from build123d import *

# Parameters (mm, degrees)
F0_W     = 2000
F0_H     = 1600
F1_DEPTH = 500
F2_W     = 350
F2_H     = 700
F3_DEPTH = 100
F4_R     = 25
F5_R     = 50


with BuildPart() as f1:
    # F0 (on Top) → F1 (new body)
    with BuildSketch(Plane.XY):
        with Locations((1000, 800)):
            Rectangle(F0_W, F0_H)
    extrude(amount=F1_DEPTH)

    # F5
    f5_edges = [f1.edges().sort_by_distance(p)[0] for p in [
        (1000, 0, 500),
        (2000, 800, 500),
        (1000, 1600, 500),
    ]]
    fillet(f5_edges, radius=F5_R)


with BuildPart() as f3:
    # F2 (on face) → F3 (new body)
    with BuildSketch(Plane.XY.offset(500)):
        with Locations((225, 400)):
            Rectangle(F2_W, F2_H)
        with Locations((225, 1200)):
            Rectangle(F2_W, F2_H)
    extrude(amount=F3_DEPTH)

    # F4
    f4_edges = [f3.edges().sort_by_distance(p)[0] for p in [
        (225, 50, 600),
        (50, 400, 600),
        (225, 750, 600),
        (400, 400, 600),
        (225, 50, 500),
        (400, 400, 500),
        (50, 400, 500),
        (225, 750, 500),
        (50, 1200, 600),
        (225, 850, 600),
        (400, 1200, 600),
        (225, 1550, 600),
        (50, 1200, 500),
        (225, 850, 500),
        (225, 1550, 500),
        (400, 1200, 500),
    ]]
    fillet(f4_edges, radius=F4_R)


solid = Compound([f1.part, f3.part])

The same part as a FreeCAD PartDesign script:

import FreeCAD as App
import Part
import Sketcher

V = App.Vector
Q = App.Units.Quantity


def edges_at(feature, points):
    """Names of the edges that pass closest to the given points."""
    edges = feature.Shape.Edges
    near = lambda p: min(range(len(edges)), key=lambda i: edges[i].distToShape(Part.Vertex(*p))[0])
    return sorted({f"Edge{near(p) + 1}" for p in points})


def add_polygon(sketch, points):
    """Adds a closed chain of lines whose ends are joined by coincident constraints."""
    first, n = sketch.GeometryCount, len(points)
    for a, b in zip(points, points[1:] + points[:1]):
        sketch.addGeometry(Part.LineSegment(App.Vector(*a, 0), App.Vector(*b, 0)), False)
    for i in range(n):
        sketch.addConstraint(Sketcher.Constraint("Coincident", first + i, 2, first + (i + 1) % n, 1))

doc = App.newDocument("Part")
body = doc.addObject("PartDesign::Body", "Body")

# Sketch on XY plane
sketch1 = body.newObject("Sketcher::SketchObject", "Sketch")
sketch1.AttachmentSupport = (doc.getObject("XY_Plane"), [""])
sketch1.MapMode = "FlatFace"
add_polygon(sketch1, [(0, 1600), (0, 0), (2000, 0), (2000, 1600)])  # lines 0-3
sketch1.addConstraint(Sketcher.Constraint("Vertical", 0))
sketch1.addConstraint(Sketcher.Constraint("Horizontal", 1))
sketch1.addConstraint(Sketcher.Constraint("Vertical", 2))
sketch1.addConstraint(Sketcher.Constraint("Horizontal", 3))
sketch1.addConstraint(Sketcher.Constraint("Coincident", 0, 2, -1, 1))
sketch1.addConstraint(Sketcher.Constraint("DistanceX", 1, 1, 1, 2, Q("2000 mm")))
sketch1.addConstraint(Sketcher.Constraint("DistanceY", 0, 2, 0, 1, Q("1600 mm")))
pad1 = body.newObject("PartDesign::Pad", "Pad")
pad1.Profile = sketch1
pad1.Length = 500
doc.recompute()

fillet = body.newObject("PartDesign::Fillet", "Fillet")
fillet.Base = (pad1, edges_at(pad1, [(1000, 0, 500), (2000, 800, 500), (1000, 1600, 500)]))
fillet.Radius = 50
body2 = doc.addObject("PartDesign::Body", "Body001")
body2.AllowCompound = True

# Sketch on XY plane
sketch2 = body2.newObject("Sketcher::SketchObject", "Sketch001")
sketch2.AttachmentSupport = (doc.getObject("XY_Plane001"), [""])
sketch2.MapMode = "FlatFace"
sketch2.AttachmentOffset = App.Placement(V(0, 0, 500), App.Rotation())
add_polygon(sketch2, [(50, 750), (50, 50), (400, 50), (400, 750)])  # lines 0-3
add_polygon(sketch2, [(50, 1550), (50, 850), (400, 850), (400, 1550)])  # lines 4-7
sketch2.addConstraint(Sketcher.Constraint("Vertical", 0))
sketch2.addConstraint(Sketcher.Constraint("Horizontal", 1))
sketch2.addConstraint(Sketcher.Constraint("Vertical", 2))
sketch2.addConstraint(Sketcher.Constraint("Horizontal", 3))
sketch2.addConstraint(Sketcher.Constraint("Vertical", 4))
sketch2.addConstraint(Sketcher.Constraint("Horizontal", 5))
sketch2.addConstraint(Sketcher.Constraint("Vertical", 6))
sketch2.addConstraint(Sketcher.Constraint("Horizontal", 7))
sketch2.addConstraint(Sketcher.Constraint("Vertical", 3, 2, 4, 2))
sketch2.addConstraint(Sketcher.Constraint("Vertical", 2, 2, 5, 2))
sketch2.addConstraint(Sketcher.Constraint("Equal", 2, 4))
sketch2.addConstraint(Sketcher.Constraint("DistanceX", 1, 1, 1, 2, Q("350 mm")))
sketch2.addConstraint(Sketcher.Constraint("DistanceY", 0, 2, 0, 1, Q("700 mm")))
sketch2.addConstraint(Sketcher.Constraint("DistanceX", -1, 1, 0, 2, Q("50 mm")))
sketch2.addConstraint(Sketcher.Constraint("DistanceY", -1, 1, 0, 2, Q("50 mm")))
sketch2.addConstraint(Sketcher.Constraint("DistanceY", -1, 1, 4, 2, Q("850 mm")))
pad2 = body2.newObject("PartDesign::Pad", "Pad001")
pad2.Profile = sketch2
pad2.Length = 100
doc.recompute()

fillet2 = body2.newObject("PartDesign::Fillet", "Fillet001")
fillet2.Base = (pad2, edges_at(pad2, [
    (225, 50, 600),
    (50, 400, 600),
    (225, 750, 600),
    (400, 400, 600),
    (225, 50, 500),
    (400, 400, 500),
    (50, 400, 500),
    (225, 750, 500),
    (50, 1200, 600),
    (225, 850, 600),
    (400, 1200, 600),
    (225, 1550, 600),
    (50, 1200, 500),
    (225, 850, 500),
    (225, 1550, 500),
    (400, 1200, 500),
]))
fillet2.Radius = 25

doc.recompute()
